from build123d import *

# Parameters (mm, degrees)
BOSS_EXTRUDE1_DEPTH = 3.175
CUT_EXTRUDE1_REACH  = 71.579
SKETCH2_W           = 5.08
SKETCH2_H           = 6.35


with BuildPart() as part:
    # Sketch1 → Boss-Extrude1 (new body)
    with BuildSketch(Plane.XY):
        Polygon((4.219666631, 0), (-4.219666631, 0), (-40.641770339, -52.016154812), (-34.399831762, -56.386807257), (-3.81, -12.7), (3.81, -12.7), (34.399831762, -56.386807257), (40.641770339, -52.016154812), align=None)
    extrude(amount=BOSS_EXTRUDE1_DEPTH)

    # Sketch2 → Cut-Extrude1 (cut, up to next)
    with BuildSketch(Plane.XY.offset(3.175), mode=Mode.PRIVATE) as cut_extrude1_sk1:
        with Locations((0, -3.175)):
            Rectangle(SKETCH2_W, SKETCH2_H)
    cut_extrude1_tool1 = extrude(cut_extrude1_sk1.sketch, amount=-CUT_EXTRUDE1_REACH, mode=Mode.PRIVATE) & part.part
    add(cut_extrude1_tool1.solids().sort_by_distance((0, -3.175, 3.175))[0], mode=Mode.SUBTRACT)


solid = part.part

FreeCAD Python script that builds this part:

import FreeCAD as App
import Part
import Sketcher
Q = App.Units.Quantity


def add_polygon(sketch, points):
    """Adds a closed chain of lines whose ends are joined by coincident constraints."""
    first, n = sketch.GeometryCount, len(points)
    for a, b in zip(points, points[1:] + points[:1]):
        sketch.addGeometry(Part.LineSegment(App.Vector(*a, 0), App.Vector(*b, 0)), False)
    for i in range(n):
        sketch.addConstraint(Sketcher.Constraint("Coincident", first + i, 2, first + (i + 1) % n, 1))

doc = App.newDocument("Part")
params = doc.addObject("Spreadsheet::Sheet", "Params")
for row, (alias, value) in enumerate([
    ("sketch1_width", "0.3 in"),
    ("sketch1_length", "2.5 in"),
    ("sketch1_length2", "0.3 in"),
    ("pad1_length", "0.125 in"),
    ("sketch2_width", "0.2 in"),
    ("sketch2_height", "0.25 in"),
], start=1):
    params.set(f"A{row}", alias)
    params.set(f"B{row}", "=" + value)
    params.setAlias(f"B{row}", alias)

body = doc.addObject("PartDesign::Body", "Body")

# Sketch on XY plane
sketch1 = doc.addObject("Sketcher::SketchObject", "Sketch")
body.addObject(sketch1)
sketch1.AttachmentSupport = (doc.XY_Plane, [""])
sketch1.MapMode = "FlatFace"
add_polygon(sketch1, [(4.219667, 0), (-4.219667, 0), (-40.64177, -52.016155), (-34.399832, -56.386807), (-3.81, -12.7), (3.81, -12.7), (34.399832, -56.386807), (40.64177, -52.016155)])  # lines 0-7
sketch1.addConstraint(Sketcher.Constraint("Horizontal", 0))
sketch1.addConstraint(Sketcher.Constraint("Horizontal", 4))
sketch1.addConstraint(Sketcher.Constraint("Symmetric", 0, 2, 7, 2, -1, 1))
sketch1.addConstraint(Sketcher.Constraint("Symmetric", 2, 2, 5, 2, -2))
sketch1.addConstraint(Sketcher.Constraint("Symmetric", 1, 2, 6, 2, -2))
sketch1.addConstraint(Sketcher.Constraint("Perpendicular", 1, 2))
sketch1.addConstraint(Sketcher.Constraint("Perpendicular", 2, 3))
sketch1.addConstraint(Sketcher.Constraint("Perpendicular", 5, 6))
sketch1.addConstraint(Sketcher.Constraint("DistanceX", 4, 1, 4, 2, Q("0.3 in")))
sketch1.addConstraint(Sketcher.Constraint("Angle", 1, Q("-125 deg")))
sketch1.addConstraint(Sketcher.Constraint("Distance", 1, Q("2.5 in")))
sketch1.addConstraint(Sketcher.Constraint("Distance", 2, Q("0.3 in")))
sketch1.addConstraint(Sketcher.Constraint("DistanceY", 3, 2, -1, 1, Q("0.5 in")))
sketch1.setExpression("Constraints[16]", "Params.sketch1_width")
sketch1.setExpression("Constraints[18]", "Params.sketch1_length")
sketch1.setExpression("Constraints[19]", "Params.sketch1_length2")
pad1 = doc.addObject("PartDesign::Pad", "Pad")
body.addObject(pad1)
pad1.Profile = sketch1
pad1.setExpression("Length", "Params.pad1_length")

# Sketch on XY plane
sketch2 = doc.addObject("Sketcher::SketchObject", "Sketch001")
body.addObject(sketch2)
sketch2.AttachmentSupport = (doc.XY_Plane, [""])
sketch2.MapMode = "FlatFace"
sketch2.AttachmentOffset = App.Placement(App.Vector(0, 0, 0.125 * 25.4), App.Rotation())
add_polygon(sketch2, [(-2.54, 0), (-2.54, -6.35), (2.54, -6.35), (2.54, 0)])  # lines 0-3
sketch2.addConstraint(Sketcher.Constraint("Vertical", 0))
sketch2.addConstraint(Sketcher.Constraint("Horizontal", 1))
sketch2.addConstraint(Sketcher.Constraint("Vertical", 2))
sketch2.addConstraint(Sketcher.Constraint("Horizontal", 3))
sketch2.addConstraint(Sketcher.Constraint("Symmetric", 2, 2, 3, 2, -1, 1))
sketch2.addConstraint(Sketcher.Constraint("DistanceX", 1, 1, 1, 2, Q("0.2 in")))
sketch2.addConstraint(Sketcher.Constraint("DistanceY", 0, 2, 0, 1, Q("0.25 in")))
sketch2.setExpression("Constraints[9]", "Params.sketch2_width")
sketch2.setExpression("Constraints[10]", "Params.sketch2_height")
pocket1 = doc.addObject("PartDesign::Pocket", "Pocket")
body.addObject(pocket1)
pocket1.Profile = sketch2
pocket1.Type = "UpToFirst"

doc.recompute()
